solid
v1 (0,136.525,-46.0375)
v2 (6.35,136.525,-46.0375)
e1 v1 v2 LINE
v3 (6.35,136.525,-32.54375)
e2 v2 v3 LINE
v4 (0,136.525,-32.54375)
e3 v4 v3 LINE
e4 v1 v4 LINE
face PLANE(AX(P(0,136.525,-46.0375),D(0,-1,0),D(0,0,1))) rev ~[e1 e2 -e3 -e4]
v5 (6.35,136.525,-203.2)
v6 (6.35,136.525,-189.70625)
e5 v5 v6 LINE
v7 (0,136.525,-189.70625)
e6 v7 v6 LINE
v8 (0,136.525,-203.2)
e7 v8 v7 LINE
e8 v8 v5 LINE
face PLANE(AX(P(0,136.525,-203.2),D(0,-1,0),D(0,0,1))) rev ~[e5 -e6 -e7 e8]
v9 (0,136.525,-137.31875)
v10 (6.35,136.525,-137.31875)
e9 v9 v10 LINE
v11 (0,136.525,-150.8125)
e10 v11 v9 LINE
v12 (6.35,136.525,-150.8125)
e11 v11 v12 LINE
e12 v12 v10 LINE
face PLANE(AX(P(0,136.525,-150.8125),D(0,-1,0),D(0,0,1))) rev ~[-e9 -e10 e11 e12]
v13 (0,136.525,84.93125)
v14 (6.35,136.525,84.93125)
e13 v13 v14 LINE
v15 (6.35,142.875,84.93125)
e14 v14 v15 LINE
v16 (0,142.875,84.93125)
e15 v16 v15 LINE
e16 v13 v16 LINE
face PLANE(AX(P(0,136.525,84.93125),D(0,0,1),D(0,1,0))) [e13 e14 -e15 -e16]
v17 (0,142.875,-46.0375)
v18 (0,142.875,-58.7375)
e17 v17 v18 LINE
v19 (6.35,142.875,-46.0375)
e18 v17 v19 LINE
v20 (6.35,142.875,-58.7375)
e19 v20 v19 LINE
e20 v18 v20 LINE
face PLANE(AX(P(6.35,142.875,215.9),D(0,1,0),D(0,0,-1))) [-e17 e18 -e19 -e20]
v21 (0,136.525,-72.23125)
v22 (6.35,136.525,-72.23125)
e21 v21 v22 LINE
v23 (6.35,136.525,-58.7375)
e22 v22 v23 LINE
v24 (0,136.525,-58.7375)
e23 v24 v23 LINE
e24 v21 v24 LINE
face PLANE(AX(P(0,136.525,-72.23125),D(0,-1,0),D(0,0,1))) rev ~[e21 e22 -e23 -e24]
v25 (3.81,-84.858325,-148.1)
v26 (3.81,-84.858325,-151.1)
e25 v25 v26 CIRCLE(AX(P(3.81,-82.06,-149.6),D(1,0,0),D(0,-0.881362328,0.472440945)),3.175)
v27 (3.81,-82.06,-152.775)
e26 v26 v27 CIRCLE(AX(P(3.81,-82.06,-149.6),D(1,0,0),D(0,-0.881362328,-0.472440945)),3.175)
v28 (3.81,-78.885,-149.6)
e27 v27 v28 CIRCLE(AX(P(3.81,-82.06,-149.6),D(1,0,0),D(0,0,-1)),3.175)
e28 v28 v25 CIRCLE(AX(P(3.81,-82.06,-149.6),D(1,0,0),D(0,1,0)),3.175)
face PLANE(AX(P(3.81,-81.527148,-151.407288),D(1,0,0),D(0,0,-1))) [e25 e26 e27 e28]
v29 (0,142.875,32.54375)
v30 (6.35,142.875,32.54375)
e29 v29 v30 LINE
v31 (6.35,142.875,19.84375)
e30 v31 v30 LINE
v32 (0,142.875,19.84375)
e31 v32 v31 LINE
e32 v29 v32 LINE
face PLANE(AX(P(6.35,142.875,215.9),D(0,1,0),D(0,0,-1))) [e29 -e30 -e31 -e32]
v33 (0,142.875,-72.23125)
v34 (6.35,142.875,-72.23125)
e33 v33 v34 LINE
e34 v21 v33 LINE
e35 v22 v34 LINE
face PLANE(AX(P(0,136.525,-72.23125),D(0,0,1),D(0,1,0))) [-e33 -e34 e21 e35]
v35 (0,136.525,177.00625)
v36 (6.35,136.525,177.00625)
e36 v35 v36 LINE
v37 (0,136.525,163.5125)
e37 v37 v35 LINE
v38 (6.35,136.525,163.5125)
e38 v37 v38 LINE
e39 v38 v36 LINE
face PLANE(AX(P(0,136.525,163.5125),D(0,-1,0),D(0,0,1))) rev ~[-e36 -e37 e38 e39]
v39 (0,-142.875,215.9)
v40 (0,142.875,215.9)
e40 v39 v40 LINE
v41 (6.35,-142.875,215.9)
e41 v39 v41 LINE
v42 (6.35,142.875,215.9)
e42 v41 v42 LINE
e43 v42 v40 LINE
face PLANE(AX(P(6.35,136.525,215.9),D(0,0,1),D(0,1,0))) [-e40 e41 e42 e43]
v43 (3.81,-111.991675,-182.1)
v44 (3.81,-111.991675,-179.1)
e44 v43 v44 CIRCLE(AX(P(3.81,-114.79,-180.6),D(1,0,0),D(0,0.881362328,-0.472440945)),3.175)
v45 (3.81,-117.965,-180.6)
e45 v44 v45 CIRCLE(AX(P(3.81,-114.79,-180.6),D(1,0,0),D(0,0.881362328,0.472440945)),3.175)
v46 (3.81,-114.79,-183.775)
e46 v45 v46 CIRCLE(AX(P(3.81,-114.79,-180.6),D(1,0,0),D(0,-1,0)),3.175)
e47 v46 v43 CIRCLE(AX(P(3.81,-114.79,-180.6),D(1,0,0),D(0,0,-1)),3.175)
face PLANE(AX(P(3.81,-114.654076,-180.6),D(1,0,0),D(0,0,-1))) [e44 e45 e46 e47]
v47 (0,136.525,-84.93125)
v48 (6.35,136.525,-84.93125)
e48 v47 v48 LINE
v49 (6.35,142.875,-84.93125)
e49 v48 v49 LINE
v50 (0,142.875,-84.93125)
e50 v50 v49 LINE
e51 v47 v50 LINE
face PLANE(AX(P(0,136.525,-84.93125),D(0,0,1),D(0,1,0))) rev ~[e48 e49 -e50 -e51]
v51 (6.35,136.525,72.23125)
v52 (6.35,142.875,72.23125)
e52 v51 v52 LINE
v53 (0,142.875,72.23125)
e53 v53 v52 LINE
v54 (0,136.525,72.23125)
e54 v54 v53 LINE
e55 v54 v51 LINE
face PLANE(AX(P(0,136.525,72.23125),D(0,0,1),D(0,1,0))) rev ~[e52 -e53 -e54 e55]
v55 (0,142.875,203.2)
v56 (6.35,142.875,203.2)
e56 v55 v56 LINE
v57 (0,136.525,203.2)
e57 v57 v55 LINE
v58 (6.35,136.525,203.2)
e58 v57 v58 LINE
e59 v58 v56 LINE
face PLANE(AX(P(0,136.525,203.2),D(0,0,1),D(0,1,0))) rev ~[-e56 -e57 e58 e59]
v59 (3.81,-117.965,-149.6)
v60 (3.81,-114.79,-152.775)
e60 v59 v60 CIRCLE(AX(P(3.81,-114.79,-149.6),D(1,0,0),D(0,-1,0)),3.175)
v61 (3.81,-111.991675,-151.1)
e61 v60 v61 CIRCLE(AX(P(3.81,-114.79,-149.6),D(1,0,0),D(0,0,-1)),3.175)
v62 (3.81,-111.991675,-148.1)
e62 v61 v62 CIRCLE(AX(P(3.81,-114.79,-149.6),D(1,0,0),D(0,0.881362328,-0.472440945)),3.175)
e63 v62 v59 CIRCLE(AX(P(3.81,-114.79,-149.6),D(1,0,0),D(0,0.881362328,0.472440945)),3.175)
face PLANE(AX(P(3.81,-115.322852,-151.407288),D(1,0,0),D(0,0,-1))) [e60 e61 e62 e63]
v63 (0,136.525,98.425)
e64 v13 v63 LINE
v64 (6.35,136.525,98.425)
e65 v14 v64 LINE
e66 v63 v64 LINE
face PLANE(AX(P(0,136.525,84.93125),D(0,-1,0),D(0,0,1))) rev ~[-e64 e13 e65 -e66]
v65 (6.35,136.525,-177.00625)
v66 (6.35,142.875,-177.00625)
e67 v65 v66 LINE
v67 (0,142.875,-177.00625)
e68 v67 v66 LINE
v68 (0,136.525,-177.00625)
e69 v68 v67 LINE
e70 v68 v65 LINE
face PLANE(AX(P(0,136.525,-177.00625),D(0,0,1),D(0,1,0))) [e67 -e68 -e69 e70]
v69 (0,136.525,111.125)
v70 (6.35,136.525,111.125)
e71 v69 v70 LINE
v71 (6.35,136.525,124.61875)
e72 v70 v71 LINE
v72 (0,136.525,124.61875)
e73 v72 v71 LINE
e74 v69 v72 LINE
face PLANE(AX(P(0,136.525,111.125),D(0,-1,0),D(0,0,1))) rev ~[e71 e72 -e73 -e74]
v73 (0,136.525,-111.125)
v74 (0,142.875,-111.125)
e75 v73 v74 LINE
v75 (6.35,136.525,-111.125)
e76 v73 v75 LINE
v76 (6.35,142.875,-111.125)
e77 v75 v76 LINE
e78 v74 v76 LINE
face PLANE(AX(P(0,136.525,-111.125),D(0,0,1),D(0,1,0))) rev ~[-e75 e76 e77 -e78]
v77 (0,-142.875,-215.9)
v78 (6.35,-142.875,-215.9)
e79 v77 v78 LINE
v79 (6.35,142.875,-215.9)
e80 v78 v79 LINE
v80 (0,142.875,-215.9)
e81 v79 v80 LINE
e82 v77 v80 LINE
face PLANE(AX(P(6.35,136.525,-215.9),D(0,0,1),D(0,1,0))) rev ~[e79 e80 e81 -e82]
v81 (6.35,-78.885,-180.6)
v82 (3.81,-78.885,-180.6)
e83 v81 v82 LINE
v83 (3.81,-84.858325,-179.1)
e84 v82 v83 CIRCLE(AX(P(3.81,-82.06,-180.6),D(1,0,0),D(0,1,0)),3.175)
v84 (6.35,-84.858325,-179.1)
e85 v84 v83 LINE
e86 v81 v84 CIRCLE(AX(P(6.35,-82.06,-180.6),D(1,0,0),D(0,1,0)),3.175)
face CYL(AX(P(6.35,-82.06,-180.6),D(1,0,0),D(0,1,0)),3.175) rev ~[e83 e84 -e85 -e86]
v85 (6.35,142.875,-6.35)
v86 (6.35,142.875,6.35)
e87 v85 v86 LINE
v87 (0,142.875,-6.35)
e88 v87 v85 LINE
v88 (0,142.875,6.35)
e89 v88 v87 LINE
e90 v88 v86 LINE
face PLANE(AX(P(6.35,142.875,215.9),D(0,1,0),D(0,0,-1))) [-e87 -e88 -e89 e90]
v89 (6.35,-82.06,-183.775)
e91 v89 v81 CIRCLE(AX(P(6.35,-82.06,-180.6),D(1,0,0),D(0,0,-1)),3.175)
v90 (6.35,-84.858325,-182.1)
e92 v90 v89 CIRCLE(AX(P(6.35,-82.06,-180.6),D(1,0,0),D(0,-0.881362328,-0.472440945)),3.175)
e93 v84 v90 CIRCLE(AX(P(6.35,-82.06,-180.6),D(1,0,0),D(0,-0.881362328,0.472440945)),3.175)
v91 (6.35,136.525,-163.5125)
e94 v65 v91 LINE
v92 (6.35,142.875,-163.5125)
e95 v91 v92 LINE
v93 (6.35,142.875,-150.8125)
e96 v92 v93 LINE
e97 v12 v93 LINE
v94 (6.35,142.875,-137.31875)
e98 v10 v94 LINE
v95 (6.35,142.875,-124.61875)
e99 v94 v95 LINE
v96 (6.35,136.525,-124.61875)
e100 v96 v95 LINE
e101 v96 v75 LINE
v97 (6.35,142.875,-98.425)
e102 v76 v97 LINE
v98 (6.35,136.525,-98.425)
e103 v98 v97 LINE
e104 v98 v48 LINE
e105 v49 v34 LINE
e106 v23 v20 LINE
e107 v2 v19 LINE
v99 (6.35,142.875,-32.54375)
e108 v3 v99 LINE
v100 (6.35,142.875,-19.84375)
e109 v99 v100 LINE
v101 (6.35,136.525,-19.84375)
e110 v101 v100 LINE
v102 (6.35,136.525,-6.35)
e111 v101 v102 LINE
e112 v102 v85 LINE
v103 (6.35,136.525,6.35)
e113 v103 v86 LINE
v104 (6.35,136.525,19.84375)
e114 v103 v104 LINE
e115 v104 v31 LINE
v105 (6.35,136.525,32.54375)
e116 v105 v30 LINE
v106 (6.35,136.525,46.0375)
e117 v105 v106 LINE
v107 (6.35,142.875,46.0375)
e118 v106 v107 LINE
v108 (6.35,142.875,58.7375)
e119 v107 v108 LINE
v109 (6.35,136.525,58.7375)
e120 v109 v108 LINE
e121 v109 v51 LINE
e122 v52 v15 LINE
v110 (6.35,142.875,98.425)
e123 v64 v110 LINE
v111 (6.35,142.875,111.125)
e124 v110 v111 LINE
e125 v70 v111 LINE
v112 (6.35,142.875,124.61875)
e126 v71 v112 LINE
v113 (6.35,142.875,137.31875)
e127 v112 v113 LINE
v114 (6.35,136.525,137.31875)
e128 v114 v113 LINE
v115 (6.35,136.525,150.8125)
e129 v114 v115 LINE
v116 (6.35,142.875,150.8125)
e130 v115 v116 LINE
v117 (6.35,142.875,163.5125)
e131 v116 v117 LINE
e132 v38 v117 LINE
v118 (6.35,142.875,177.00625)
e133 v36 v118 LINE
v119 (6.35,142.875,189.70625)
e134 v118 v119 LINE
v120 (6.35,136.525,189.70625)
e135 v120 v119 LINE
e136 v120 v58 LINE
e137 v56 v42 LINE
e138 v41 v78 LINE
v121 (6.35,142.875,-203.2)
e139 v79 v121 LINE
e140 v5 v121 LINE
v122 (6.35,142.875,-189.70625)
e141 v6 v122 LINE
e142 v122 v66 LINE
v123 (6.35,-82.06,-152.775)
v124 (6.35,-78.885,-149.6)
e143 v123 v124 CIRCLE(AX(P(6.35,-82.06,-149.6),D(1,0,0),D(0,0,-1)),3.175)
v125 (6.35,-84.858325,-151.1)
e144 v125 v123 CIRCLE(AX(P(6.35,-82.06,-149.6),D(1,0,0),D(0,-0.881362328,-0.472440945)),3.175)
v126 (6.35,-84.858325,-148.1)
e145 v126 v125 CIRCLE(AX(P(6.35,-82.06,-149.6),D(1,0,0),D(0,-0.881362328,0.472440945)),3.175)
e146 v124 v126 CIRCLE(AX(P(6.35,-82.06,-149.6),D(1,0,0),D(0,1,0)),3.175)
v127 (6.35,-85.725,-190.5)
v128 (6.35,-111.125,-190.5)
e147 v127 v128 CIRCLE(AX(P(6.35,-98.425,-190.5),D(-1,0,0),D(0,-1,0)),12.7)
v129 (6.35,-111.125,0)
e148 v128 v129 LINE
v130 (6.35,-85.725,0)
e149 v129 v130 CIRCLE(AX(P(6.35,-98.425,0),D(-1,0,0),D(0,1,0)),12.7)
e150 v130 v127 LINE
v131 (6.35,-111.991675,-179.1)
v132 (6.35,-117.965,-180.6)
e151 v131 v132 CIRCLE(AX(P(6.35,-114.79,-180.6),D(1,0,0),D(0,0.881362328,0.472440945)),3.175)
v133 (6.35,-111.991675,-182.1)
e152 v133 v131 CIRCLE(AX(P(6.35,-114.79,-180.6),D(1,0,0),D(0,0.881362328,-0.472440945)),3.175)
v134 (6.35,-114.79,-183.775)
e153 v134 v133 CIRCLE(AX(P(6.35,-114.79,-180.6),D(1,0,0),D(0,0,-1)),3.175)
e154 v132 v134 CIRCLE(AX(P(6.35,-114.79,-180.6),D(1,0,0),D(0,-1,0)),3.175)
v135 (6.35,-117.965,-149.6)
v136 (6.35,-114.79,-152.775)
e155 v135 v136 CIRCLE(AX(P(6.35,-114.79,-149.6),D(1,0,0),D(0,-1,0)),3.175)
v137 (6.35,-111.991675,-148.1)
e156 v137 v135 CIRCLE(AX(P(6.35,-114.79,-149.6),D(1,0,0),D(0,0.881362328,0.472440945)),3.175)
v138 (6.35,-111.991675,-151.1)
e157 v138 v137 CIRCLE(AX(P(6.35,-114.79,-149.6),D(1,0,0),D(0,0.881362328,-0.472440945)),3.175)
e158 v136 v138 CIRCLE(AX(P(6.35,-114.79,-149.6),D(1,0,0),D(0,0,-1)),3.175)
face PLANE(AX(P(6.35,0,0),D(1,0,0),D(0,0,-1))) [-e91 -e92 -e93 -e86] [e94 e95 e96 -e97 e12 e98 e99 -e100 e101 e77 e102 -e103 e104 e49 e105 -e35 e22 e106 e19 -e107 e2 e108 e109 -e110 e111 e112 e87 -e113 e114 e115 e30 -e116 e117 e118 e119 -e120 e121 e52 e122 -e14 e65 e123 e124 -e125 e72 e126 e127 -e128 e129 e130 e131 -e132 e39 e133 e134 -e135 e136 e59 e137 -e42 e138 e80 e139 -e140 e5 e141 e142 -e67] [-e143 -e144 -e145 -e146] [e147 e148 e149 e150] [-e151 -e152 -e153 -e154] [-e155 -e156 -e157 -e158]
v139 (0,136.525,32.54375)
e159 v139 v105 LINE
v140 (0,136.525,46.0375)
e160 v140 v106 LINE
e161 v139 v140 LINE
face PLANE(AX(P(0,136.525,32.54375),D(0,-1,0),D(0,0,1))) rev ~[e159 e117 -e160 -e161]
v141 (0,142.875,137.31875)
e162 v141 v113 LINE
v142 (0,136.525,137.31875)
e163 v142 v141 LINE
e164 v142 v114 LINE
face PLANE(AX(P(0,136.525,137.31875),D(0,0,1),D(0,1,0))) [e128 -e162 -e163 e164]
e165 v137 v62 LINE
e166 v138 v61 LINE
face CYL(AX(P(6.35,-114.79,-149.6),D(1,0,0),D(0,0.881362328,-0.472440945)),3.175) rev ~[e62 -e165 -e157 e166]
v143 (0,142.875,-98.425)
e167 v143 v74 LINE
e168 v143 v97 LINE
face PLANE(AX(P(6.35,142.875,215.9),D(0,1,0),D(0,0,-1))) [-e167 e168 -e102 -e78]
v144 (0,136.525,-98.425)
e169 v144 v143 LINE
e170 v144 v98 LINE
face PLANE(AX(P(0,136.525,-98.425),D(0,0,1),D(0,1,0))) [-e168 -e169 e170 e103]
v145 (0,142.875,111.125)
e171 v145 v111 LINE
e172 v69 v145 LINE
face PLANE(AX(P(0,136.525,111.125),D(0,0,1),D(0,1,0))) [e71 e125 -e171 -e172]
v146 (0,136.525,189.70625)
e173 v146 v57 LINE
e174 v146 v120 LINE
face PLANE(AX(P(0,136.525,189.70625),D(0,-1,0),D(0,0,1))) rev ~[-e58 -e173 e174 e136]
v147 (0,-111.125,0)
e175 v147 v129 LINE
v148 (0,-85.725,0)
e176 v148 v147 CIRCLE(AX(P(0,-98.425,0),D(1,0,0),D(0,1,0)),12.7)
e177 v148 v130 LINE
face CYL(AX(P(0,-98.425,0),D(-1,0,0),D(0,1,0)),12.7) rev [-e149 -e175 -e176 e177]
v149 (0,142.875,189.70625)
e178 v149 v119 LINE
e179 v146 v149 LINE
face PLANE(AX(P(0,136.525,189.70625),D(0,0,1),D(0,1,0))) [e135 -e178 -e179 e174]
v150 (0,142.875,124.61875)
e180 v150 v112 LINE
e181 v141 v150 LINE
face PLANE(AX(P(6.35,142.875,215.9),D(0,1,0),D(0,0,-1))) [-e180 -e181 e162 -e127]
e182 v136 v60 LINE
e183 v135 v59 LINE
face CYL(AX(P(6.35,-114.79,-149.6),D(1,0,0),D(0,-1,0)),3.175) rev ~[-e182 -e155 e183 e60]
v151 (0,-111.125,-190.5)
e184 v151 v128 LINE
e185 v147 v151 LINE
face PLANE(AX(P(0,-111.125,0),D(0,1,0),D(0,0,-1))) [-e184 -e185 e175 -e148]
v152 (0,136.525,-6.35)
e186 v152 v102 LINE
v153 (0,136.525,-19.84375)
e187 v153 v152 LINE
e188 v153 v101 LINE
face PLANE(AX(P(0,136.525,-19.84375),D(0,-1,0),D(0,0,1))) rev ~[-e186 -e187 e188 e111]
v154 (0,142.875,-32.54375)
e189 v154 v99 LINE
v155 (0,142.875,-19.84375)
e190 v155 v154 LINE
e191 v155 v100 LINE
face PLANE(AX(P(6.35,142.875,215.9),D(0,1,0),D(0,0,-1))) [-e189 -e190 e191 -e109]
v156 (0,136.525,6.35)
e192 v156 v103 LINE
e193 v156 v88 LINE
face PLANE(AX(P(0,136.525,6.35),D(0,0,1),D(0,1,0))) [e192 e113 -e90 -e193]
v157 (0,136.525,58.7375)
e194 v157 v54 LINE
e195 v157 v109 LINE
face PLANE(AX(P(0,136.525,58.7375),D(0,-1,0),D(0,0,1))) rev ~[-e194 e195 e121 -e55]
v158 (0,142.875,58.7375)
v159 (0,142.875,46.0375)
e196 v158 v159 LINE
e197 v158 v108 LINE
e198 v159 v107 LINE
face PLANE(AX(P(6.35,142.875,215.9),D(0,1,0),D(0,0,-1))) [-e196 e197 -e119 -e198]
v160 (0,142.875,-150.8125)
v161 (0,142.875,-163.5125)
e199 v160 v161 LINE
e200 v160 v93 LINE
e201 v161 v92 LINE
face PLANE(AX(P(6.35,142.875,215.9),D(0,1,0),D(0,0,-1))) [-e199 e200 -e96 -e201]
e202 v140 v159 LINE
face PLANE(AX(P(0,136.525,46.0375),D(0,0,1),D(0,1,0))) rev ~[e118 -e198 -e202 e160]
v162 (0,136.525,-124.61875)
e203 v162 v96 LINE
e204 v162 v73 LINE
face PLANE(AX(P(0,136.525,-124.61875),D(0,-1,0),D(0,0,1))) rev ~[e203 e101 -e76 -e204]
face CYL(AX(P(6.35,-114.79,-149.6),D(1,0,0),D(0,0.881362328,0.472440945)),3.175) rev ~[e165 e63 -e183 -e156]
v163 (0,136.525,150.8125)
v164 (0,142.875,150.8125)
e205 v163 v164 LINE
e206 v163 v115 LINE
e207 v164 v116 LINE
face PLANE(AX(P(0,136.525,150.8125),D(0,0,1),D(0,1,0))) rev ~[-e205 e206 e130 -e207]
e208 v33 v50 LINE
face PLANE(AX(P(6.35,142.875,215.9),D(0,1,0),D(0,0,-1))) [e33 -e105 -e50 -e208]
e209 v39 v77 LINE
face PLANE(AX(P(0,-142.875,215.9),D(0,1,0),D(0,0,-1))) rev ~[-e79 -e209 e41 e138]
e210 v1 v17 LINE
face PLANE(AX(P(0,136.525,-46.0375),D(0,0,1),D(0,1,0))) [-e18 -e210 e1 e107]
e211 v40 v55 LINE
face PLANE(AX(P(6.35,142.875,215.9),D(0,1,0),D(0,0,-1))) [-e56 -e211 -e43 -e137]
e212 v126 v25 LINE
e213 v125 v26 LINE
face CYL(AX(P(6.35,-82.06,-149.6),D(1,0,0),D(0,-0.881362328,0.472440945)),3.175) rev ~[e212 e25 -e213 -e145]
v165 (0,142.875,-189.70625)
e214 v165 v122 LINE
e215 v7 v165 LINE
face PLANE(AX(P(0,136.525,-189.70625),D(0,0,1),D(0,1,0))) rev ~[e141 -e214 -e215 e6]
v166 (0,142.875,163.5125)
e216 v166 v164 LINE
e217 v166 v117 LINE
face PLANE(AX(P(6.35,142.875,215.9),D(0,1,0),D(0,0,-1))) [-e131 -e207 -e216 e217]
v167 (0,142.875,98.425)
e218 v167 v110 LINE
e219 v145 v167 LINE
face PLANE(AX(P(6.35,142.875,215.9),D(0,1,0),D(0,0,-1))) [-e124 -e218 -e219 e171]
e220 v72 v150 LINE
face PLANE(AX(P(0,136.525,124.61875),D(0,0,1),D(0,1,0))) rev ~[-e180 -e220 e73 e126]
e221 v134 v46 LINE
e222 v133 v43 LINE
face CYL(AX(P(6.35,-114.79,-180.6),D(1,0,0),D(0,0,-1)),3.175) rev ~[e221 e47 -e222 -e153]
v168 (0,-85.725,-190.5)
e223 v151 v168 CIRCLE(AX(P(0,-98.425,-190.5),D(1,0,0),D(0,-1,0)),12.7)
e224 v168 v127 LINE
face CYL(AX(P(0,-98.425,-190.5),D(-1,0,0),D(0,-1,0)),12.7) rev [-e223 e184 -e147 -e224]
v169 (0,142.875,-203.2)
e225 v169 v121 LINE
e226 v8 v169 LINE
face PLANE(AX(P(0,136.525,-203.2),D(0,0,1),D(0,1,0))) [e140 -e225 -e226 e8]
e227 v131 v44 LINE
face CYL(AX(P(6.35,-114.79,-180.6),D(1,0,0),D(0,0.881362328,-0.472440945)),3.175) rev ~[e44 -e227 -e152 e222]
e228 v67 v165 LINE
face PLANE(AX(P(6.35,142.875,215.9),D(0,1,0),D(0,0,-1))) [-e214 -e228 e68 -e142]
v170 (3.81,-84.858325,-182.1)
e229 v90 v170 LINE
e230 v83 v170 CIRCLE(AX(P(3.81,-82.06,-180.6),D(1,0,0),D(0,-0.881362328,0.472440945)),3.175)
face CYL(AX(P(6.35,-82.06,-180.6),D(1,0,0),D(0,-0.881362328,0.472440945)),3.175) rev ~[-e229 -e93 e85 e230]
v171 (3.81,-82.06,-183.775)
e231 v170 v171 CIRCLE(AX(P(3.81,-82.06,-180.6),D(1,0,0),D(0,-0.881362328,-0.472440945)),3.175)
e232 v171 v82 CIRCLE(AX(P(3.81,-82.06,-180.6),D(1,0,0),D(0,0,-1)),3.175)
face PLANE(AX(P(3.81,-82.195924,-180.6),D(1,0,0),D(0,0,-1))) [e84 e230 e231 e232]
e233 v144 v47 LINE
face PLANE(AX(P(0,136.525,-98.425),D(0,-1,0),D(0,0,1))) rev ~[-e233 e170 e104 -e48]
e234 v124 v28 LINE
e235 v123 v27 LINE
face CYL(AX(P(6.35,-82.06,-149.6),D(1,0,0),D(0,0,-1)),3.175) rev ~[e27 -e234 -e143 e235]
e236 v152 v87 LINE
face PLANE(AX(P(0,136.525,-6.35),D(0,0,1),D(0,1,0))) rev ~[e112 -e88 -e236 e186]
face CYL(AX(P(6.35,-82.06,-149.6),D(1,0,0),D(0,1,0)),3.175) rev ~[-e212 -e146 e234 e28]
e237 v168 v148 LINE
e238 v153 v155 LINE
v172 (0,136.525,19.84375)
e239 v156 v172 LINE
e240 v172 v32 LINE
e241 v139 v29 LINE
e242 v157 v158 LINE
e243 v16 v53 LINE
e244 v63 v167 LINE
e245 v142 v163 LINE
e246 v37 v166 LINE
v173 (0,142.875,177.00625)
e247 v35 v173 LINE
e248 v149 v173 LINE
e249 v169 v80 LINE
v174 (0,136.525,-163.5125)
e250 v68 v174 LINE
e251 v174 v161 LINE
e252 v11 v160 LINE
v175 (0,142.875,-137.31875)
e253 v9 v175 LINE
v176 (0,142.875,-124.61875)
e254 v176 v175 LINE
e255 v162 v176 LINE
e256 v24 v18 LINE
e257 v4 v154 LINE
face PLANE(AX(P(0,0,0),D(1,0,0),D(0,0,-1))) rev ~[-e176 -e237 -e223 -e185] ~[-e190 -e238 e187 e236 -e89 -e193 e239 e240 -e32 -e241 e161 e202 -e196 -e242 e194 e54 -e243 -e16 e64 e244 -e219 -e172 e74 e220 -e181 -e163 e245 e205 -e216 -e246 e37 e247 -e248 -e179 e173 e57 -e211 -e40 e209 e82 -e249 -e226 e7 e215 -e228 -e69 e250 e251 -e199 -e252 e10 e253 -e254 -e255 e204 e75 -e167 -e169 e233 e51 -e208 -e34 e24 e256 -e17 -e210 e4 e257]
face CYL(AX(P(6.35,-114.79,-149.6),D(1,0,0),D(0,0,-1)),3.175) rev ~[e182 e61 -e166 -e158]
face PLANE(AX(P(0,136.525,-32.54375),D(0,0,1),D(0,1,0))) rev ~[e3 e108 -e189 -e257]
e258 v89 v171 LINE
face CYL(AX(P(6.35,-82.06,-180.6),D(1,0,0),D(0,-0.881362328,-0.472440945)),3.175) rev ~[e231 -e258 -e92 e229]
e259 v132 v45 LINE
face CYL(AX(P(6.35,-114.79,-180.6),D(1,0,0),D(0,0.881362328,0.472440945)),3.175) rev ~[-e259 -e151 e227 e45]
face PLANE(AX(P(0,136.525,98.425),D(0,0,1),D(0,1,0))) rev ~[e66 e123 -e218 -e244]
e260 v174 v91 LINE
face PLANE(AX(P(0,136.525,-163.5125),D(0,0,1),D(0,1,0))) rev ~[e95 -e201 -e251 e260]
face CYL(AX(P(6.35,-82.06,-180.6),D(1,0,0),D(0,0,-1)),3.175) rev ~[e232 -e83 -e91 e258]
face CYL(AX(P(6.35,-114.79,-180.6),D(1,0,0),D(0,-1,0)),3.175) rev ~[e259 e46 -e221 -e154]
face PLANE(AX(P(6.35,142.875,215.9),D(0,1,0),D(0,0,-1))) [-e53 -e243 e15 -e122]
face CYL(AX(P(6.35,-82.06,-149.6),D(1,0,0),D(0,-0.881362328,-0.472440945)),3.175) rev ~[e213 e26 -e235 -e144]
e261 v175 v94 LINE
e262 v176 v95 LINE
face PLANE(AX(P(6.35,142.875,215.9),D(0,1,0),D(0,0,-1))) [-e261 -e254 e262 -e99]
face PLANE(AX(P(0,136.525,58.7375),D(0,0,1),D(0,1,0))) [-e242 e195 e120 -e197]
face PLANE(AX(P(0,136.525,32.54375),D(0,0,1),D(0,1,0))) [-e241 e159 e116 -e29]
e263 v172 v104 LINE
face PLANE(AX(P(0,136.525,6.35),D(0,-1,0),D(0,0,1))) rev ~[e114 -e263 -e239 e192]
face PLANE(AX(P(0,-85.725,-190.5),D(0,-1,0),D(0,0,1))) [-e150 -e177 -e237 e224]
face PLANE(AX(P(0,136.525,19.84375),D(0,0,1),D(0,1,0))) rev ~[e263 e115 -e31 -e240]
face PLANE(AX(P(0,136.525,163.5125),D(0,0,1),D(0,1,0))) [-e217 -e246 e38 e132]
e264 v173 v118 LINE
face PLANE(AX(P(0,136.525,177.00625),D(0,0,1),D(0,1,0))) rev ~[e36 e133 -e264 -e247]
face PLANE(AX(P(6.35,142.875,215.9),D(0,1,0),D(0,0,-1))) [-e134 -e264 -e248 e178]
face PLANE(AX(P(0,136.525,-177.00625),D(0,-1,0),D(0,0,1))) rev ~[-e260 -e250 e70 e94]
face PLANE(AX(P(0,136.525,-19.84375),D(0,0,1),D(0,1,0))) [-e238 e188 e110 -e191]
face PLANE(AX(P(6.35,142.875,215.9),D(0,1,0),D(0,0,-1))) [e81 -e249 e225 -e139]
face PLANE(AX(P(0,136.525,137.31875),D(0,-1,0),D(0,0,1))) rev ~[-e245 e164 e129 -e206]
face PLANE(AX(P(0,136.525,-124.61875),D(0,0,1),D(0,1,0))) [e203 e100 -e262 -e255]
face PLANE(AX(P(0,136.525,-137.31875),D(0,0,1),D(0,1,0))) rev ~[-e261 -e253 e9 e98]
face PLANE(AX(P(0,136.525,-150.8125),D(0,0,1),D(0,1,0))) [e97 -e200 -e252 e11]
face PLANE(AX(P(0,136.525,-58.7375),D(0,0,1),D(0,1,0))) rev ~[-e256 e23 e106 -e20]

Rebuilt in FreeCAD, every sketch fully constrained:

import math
import FreeCAD as App
import Part
import Sketcher

V = App.Vector
Q = App.Units.Quantity

doc = App.newDocument("Part")
body = doc.addObject("PartDesign::Body", "Body")

sketch1 = doc.addObject("Sketcher::SketchObject", "Sketch")
body.addObject(sketch1)
sketch1.AttachmentSupport = (doc.YZ_Plane, [""])
sketch1.MapMode = "FlatFace"
sketch1.addGeometry([
    Part.LineSegment(V(143, 216, 0), V(-143, 216, 0)),
    Part.LineSegment(V(-143, 216, 0), V(-143, -216, 0)),
    Part.LineSegment(V(-143, -216, 0), V(143, -216, 0)),
    Part.LineSegment(V(143, -216, 0), V(143, 216, 0)),
], False)
sketch1.addConstraint([
    Sketcher.Constraint("Coincident", 0, 2, 1, 1),
    Sketcher.Constraint("Coincident", 1, 2, 2, 1),
    Sketcher.Constraint("Coincident", 2, 2, 3, 1),
    Sketcher.Constraint("Coincident", 3, 2, 0, 1),
    Sketcher.Constraint("Horizontal", 0),
    Sketcher.Constraint("Vertical", 1),
    Sketcher.Constraint("Horizontal", 2),
    Sketcher.Constraint("Vertical", 3),
    Sketcher.Constraint("Symmetric", 0, 2, 2, 2, -1, 1),
    Sketcher.Constraint("DistanceY", 1, 2, 1, 1, Q("17 in")),
    Sketcher.Constraint("DistanceX", 0, 2, 0, 1, Q("11.25 in")),
])
pad1 = doc.addObject("PartDesign::Pad", "Pad")
body.addObject(pad1)
pad1.Profile = sketch1
pad1.Length = Q("0.25 in")

sketch2 = doc.addObject("Sketcher::SketchObject", "Sketch001")
body.addObject(sketch2)
sketch2.AttachmentSupport = (doc.YZ_Plane, [""])
sketch2.MapMode = "FlatFace"
sketch2.AttachmentOffset = App.Placement(V(0, 0, 0.25 * 25.4), App.Rotation())
sketch2.addGeometry([
    Part.LineSegment(V(143, 216, 0), V(137, 216, 0)),
    Part.LineSegment(V(137, 216, 0), V(137, -216, 0)),
    Part.LineSegment(V(137, -216, 0), V(143, -216, 0)),
    Part.LineSegment(V(143, -216, 0), V(143, 216, 0)),
], False)
sketch2.addConstraint([
    Sketcher.Constraint("Coincident", 0, 2, 1, 1),
    Sketcher.Constraint("Coincident", 1, 2, 2, 1),
    Sketcher.Constraint("Coincident", 2, 2, 3, 1),
    Sketcher.Constraint("Coincident", 3, 2, 0, 1),
    Sketcher.Constraint("Horizontal", 0),
    Sketcher.Constraint("Vertical", 1),
    Sketcher.Constraint("Horizontal", 2),
    Sketcher.Constraint("Vertical", 3),
    Sketcher.Constraint("DistanceY", 1, 2, 1, 1, Q("17 in")),
    Sketcher.Constraint("DistanceX", 0, 2, 0, 1, Q("0.25 in")),
    Sketcher.Constraint("DistanceY", -1, 1, 0, 2, Q("8.5 in")),
    Sketcher.Constraint("DistanceX", -1, 1, 0, 2, Q("5.375 in")),
])
pad2 = doc.addObject("PartDesign::Pad", "Pad001")
body.addObject(pad2)
pad2.Profile = sketch2
pad2.Length = Q("0.5 in")

sketch3 = doc.addObject("Sketcher::SketchObject", "Sketch002")
body.addObject(sketch3)
sketch3.AttachmentSupport = (doc.YZ_Plane, [""])
sketch3.MapMode = "FlatFace"
sketch3.addGeometry([
    Part.LineSegment(V(-86, 0, 0), V(-86, -190, 0)),
    Part.ArcOfCircle(Part.Circle(V(-98, -190, 0), V(0, 0, 1), 13), math.radians(180), math.radians(360)),
    Part.LineSegment(V(-111, -190, 0), V(-111, 0, 0)),
    Part.ArcOfCircle(Part.Circle(V(-98, 0, 0), V(0, 0, 1), 13), math.radians(0), math.radians(180)),
], False)
sketch3.addConstraint([
    Sketcher.Constraint("Tangent", 0, 2, 1, 2),
    Sketcher.Constraint("Tangent", 1, 1, 2, 1),
    Sketcher.Constraint("Tangent", 2, 2, 3, 2),
    Sketcher.Constraint("Tangent", 3, 1, 0, 1),
    Sketcher.Constraint("Vertical", 0),
    Sketcher.Constraint("Vertical", 2),
    Sketcher.Constraint("PointOnObject", 3, 3, -1),
    Sketcher.Constraint("Radius", 1, Q("0.5 in")),
    Sketcher.Constraint("DistanceY", 0, 2, 0, 1, Q("7.5 in")),
    Sketcher.Constraint("DistanceX", 1, 3, -1, 1, Q("3.875 in")),
])
pocket1 = doc.addObject("PartDesign::Pocket", "Pocket")
body.addObject(pocket1)
pocket1.Profile = sketch3
pocket1.Type = "ThroughAll"
pocket1.Reversed = True

sketch4 = doc.addObject("Sketcher::SketchObject", "Sketch003")
body.addObject(sketch4)
sketch4.AttachmentSupport = (doc.XY_Plane, [""])
sketch4.MapMode = "FlatFace"
sketch4.AttachmentOffset = App.Placement(V(0, 0, -8.5 * 25.4), App.Rotation())
sketch4.addGeometry([
    Part.LineSegment(V(58, 158, 0), V(58, 137, 0)),
    Part.LineSegment(V(58, 137, 0), V(6, 137, 0)),
    Part.LineSegment(V(6, 137, 0), V(6, 158, 0)),
    Part.LineSegment(V(6, 158, 0), V(58, 158, 0)),
], False)
sketch4.addConstraint([
    Sketcher.Constraint("Coincident", 0, 2, 1, 1),
    Sketcher.Constraint("Coincident", 1, 2, 2, 1),
    Sketcher.Constraint("Coincident", 2, 2, 3, 1),
    Sketcher.Constraint("Coincident", 3, 2, 0, 1),
    Sketcher.Constraint("Vertical", 0),
    Sketcher.Constraint("Horizontal", 1),
    Sketcher.Constraint("Vertical", 2),
    Sketcher.Constraint("Horizontal", 3),
    Sketcher.Constraint("DistanceX", -1, 1, 1, 2, Q("0.25 in")),
    Sketcher.Constraint("DistanceY", -1, 1, 0, 2, Q("5.375 in")),
    Sketcher.Constraint("DistanceX", 1, 2, 1, 1, 51.415141),
    Sketcher.Constraint("DistanceY", 0, 2, 0, 1, 21.159166),
])
pocket2 = doc.addObject("PartDesign::Pocket", "Pocket001")
body.addObject(pocket2)
pocket2.Profile = sketch4
pocket2.Type = "ThroughAll"
pocket2.Reversed = True

sketch5 = doc.addObject("Sketcher::SketchObject", "Sketch004")
body.addObject(sketch5)
sketch5.AttachmentSupport = (doc.YZ_Plane, [""])
sketch5.MapMode = "FlatFace"
sketch5.addGeometry([
    Part.LineSegment(V(143, -203, 0), V(137, -203, 0)),
    Part.LineSegment(V(137, -203, 0), V(137, -190, 0)),
    Part.LineSegment(V(137, -190, 0), V(143, -190, 0)),
    Part.LineSegment(V(143, -190, 0), V(143, -203, 0)),
    Part.LineSegment(V(143, -177, 0), V(137, -177, 0)),
    Part.LineSegment(V(137, -177, 0), V(137, -164, 0)),
    Part.LineSegment(V(137, -164, 0), V(143, -164, 0)),
    Part.LineSegment(V(143, -164, 0), V(143, -177, 0)),
    Part.LineSegment(V(143, -151, 0), V(137, -151, 0)),
    Part.LineSegment(V(137, -151, 0), V(137, -137, 0)),
    Part.LineSegment(V(137, -137, 0), V(143, -137, 0)),
    Part.LineSegment(V(143, -137, 0), V(143, -151, 0)),
    Part.LineSegment(V(143, -125, 0), V(137, -125, 0)),
    Part.LineSegment(V(137, -125, 0), V(137, -111, 0)),
    Part.LineSegment(V(137, -111, 0), V(143, -111, 0)),
    Part.LineSegment(V(143, -111, 0), V(143, -125, 0)),
    Part.LineSegment(V(143, -98, 0), V(137, -98, 0)),
    Part.LineSegment(V(137, -98, 0), V(137, -85, 0)),
    Part.LineSegment(V(137, -85, 0), V(143, -85, 0)),
    Part.LineSegment(V(143, -85, 0), V(143, -98, 0)),
    Part.LineSegment(V(143, -72, 0), V(137, -72, 0)),
    Part.LineSegment(V(137, -72, 0), V(137, -59, 0)),
    Part.LineSegment(V(137, -59, 0), V(143, -59, 0)),
    Part.LineSegment(V(143, -59, 0), V(143, -72, 0)),
    Part.LineSegment(V(143, -46, 0), V(137, -46, 0)),
    Part.LineSegment(V(137, -46, 0), V(137, -33, 0)),
    Part.LineSegment(V(137, -33, 0), V(143, -33, 0)),
    Part.LineSegment(V(143, -33, 0), V(143, -46, 0)),
    Part.LineSegment(V(143, -20, 0), V(137, -20, 0)),
    Part.LineSegment(V(137, -20, 0), V(137, -6, 0)),
    Part.LineSegment(V(137, -6, 0), V(143, -6, 0)),
    Part.LineSegment(V(143, -6, 0), V(143, -20, 0)),
    Part.LineSegment(V(143, 6, 0), V(137, 6, 0)),
    Part.LineSegment(V(137, 6, 0), V(137, 20, 0)),
    Part.LineSegment(V(137, 20, 0), V(143, 20, 0)),
    Part.LineSegment(V(143, 20, 0), V(143, 6, 0)),
    Part.LineSegment(V(143, 33, 0), V(137, 33, 0)),
    Part.LineSegment(V(137, 33, 0), V(137, 46, 0)),
    Part.LineSegment(V(137, 46, 0), V(143, 46, 0)),
    Part.LineSegment(V(143, 46, 0), V(143, 33, 0)),
    Part.LineSegment(V(143, 59, 0), V(137, 59, 0)),
    Part.LineSegment(V(137, 59, 0), V(137, 72, 0)),
    Part.LineSegment(V(137, 72, 0), V(143, 72, 0)),
    Part.LineSegment(V(143, 72, 0), V(143, 59, 0)),
    Part.LineSegment(V(143, 85, 0), V(137, 85, 0)),
    Part.LineSegment(V(137, 85, 0), V(137, 98, 0)),
    Part.LineSegment(V(137, 98, 0), V(143, 98, 0)),
    Part.LineSegment(V(143, 98, 0), V(143, 85, 0)),
    Part.LineSegment(V(143, 111, 0), V(137, 111, 0)),
    Part.LineSegment(V(137, 111, 0), V(137, 125, 0)),
    Part.LineSegment(V(137, 125, 0), V(143, 125, 0)),
    Part.LineSegment(V(143, 125, 0), V(143, 111, 0)),
    Part.LineSegment(V(143, 137, 0), V(137, 137, 0)),
    Part.LineSegment(V(137, 137, 0), V(137, 151, 0)),
    Part.LineSegment(V(137, 151, 0), V(143, 151, 0)),
    Part.LineSegment(V(143, 151, 0), V(143, 137, 0)),
    Part.LineSegment(V(143, 164, 0), V(137, 164, 0)),
    Part.LineSegment(V(137, 164, 0), V(137, 177, 0)),
    Part.LineSegment(V(137, 177, 0), V(143, 177, 0)),
    Part.LineSegment(V(143, 177, 0), V(143, 164, 0)),
    Part.LineSegment(V(143, 190, 0), V(137, 190, 0)),
    Part.LineSegment(V(137, 190, 0), V(137, 203, 0)),
    Part.LineSegment(V(137, 203, 0), V(143, 203, 0)),
    Part.LineSegment(V(143, 203, 0), V(143, 190, 0)),
], False)
sketch5.addConstraint([
    Sketcher.Constraint("Coincident", 0, 2, 1, 1),
    Sketcher.Constraint("Coincident", 1, 2, 2, 1),
    Sketcher.Constraint("Coincident", 2, 2, 3, 1),
    Sketcher.Constraint("Coincident", 3, 2, 0, 1),
    Sketcher.Constraint("Coincident", 4, 2, 5, 1),
    Sketcher.Constraint("Coincident", 5, 2, 6, 1),
    Sketcher.Constraint("Coincident", 6, 2, 7, 1),
    Sketcher.Constraint("Coincident", 7, 2, 4, 1),
    Sketcher.Constraint("Coincident", 8, 2, 9, 1),
    Sketcher.Constraint("Coincident", 9, 2, 10, 1),
    Sketcher.Constraint("Coincident", 10, 2, 11, 1),
    Sketcher.Constraint("Coincident", 11, 2, 8, 1),
    Sketcher.Constraint("Coincident", 12, 2, 13, 1),
    Sketcher.Constraint("Coincident", 13, 2, 14, 1),
    Sketcher.Constraint("Coincident", 14, 2, 15, 1),
    Sketcher.Constraint("Coincident", 15, 2, 12, 1),
    Sketcher.Constraint("Coincident", 16, 2, 17, 1),
    Sketcher.Constraint("Coincident", 17, 2, 18, 1),
    Sketcher.Constraint("Coincident", 18, 2, 19, 1),
    Sketcher.Constraint("Coincident", 19, 2, 16, 1),
    Sketcher.Constraint("Coincident", 20, 2, 21, 1),
    Sketcher.Constraint("Coincident", 21, 2, 22, 1),
    Sketcher.Constraint("Coincident", 22, 2, 23, 1),
    Sketcher.Constraint("Coincident", 23, 2, 20, 1),
    Sketcher.Constraint("Coincident", 24, 2, 25, 1),
    Sketcher.Constraint("Coincident", 25, 2, 26, 1),
    Sketcher.Constraint("Coincident", 26, 2, 27, 1),
    Sketcher.Constraint("Coincident", 27, 2, 24, 1),
    Sketcher.Constraint("Coincident", 28, 2, 29, 1),
    Sketcher.Constraint("Coincident", 29, 2, 30, 1),
    Sketcher.Constraint("Coincident", 30, 2, 31, 1),
    Sketcher.Constraint("Coincident", 31, 2, 28, 1),
    Sketcher.Constraint("Coincident", 32, 2, 33, 1),
    Sketcher.Constraint("Coincident", 33, 2, 34, 1),
    Sketcher.Constraint("Coincident", 34, 2, 35, 1),
    Sketcher.Constraint("Coincident", 35, 2, 32, 1),
    Sketcher.Constraint("Coincident", 36, 2, 37, 1),
    Sketcher.Constraint("Coincident", 37, 2, 38, 1),
    Sketcher.Constraint("Coincident", 38, 2, 39, 1),
    Sketcher.Constraint("Coincident", 39, 2, 36, 1),
    Sketcher.Constraint("Coincident", 40, 2, 41, 1),
    Sketcher.Constraint("Coincident", 41, 2, 42, 1),
    Sketcher.Constraint("Coincident", 42, 2, 43, 1),
    Sketcher.Constraint("Coincident", 43, 2, 40, 1),
    Sketcher.Constraint("Coincident", 44, 2, 45, 1),
    Sketcher.Constraint("Coincident", 45, 2, 46, 1),
    Sketcher.Constraint("Coincident", 46, 2, 47, 1),
    Sketcher.Constraint("Coincident", 47, 2, 44, 1),
    Sketcher.Constraint("Coincident", 48, 2, 49, 1),
    Sketcher.Constraint("Coincident", 49, 2, 50, 1),
    Sketcher.Constraint("Coincident", 50, 2, 51, 1),
    Sketcher.Constraint("Coincident", 51, 2, 48, 1),
    Sketcher.Constraint("Coincident", 52, 2, 53, 1),
    Sketcher.Constraint("Coincident", 53, 2, 54, 1),
    Sketcher.Constraint("Coincident", 54, 2, 55, 1),
    Sketcher.Constraint("Coincident", 55, 2, 52, 1),
    Sketcher.Constraint("Coincident", 56, 2, 57, 1),
    Sketcher.Constraint("Coincident", 57, 2, 58, 1),
    Sketcher.Constraint("Coincident", 58, 2, 59, 1),
    Sketcher.Constraint("Coincident", 59, 2, 56, 1),
    Sketcher.Constraint("Coincident", 60, 2, 61, 1),
    Sketcher.Constraint("Coincident", 61, 2, 62, 1),
    Sketcher.Constraint("Coincident", 62, 2, 63, 1),
    Sketcher.Constraint("Coincident", 63, 2, 60, 1),
    Sketcher.Constraint("Horizontal", 0),
    Sketcher.Constraint("Vertical", 1),
    Sketcher.Constraint("Horizontal", 2),
    Sketcher.Constraint("Vertical", 3),
    Sketcher.Constraint("Horizontal", 4),
    Sketcher.Constraint("Vertical", 5),
    Sketcher.Constraint("Horizontal", 6),
    Sketcher.Constraint("Vertical", 7),
    Sketcher.Constraint("Horizontal", 8),
    Sketcher.Constraint("Vertical", 9),
    Sketcher.Constraint("Horizontal", 10),
    Sketcher.Constraint("Vertical", 11),
    Sketcher.Constraint("Horizontal", 12),
    Sketcher.Constraint("Vertical", 13),
    Sketcher.Constraint("Horizontal", 14),
    Sketcher.Constraint("Vertical", 15),
    Sketcher.Constraint("Horizontal", 16),
    Sketcher.Constraint("Vertical", 17),
    Sketcher.Constraint("Horizontal", 18),
    Sketcher.Constraint("Vertical", 19),
    Sketcher.Constraint("Horizontal", 20),
    Sketcher.Constraint("Vertical", 21),
    Sketcher.Constraint("Horizontal", 22),
    Sketcher.Constraint("Vertical", 23),
    Sketcher.Constraint("Horizontal", 24),
    Sketcher.Constraint("Vertical", 25),
    Sketcher.Constraint("Horizontal", 26),
    Sketcher.Constraint("Vertical", 27),
    Sketcher.Constraint("Horizontal", 28),
    Sketcher.Constraint("Vertical", 29),
    Sketcher.Constraint("Horizontal", 30),
    Sketcher.Constraint("Vertical", 31),
    Sketcher.Constraint("Horizontal", 32),
    Sketcher.Constraint("Vertical", 33),
    Sketcher.Constraint("Horizontal", 34),
    Sketcher.Constraint("Vertical", 35),
    Sketcher.Constraint("Horizontal", 36),
    Sketcher.Constraint("Vertical", 37),
    Sketcher.Constraint("Horizontal", 38),
    Sketcher.Constraint("Vertical", 39),
    Sketcher.Constraint("Horizontal", 40),
    Sketcher.Constraint("Vertical", 41),
    Sketcher.Constraint("Horizontal", 42),
    Sketcher.Constraint("Vertical", 43),
    Sketcher.Constraint("Horizontal", 44),
    Sketcher.Constraint("Vertical", 45),
    Sketcher.Constraint("Horizontal", 46),
    Sketcher.Constraint("Vertical", 47),
    Sketcher.Constraint("Horizontal", 48),
    Sketcher.Constraint("Vertical", 49),
    Sketcher.Constraint("Horizontal", 50),
    Sketcher.Constraint("Vertical", 51),
    Sketcher.Constraint("Horizontal", 52),
    Sketcher.Constraint("Vertical", 53),
    Sketcher.Constraint("Horizontal", 54),
    Sketcher.Constraint("Vertical", 55),
    Sketcher.Constraint("Horizontal", 56),
    Sketcher.Constraint("Vertical", 57),
    Sketcher.Constraint("Horizontal", 58),
    Sketcher.Constraint("Vertical", 59),
    Sketcher.Constraint("Horizontal", 60),
    Sketcher.Constraint("Vertical", 61),
    Sketcher.Constraint("Horizontal", 62),
    Sketcher.Constraint("Vertical", 63),
    Sketcher.Constraint("Symmetric", 29, 2, 32, 2, -1),
    Sketcher.Constraint("Symmetric", 31, 2, 34, 2, -1),
    Sketcher.Constraint("Symmetric", 25, 2, 36, 2, -1),
    Sketcher.Constraint("Symmetric", 27, 2, 38, 2, -1),
    Sketcher.Constraint("Symmetric", 21, 2, 40, 2, -1),
    Sketcher.Constraint("Symmetric", 23, 2, 42, 2, -1),
    Sketcher.Constraint("Symmetric", 17, 2, 44, 2, -1),
    Sketcher.Constraint("Symmetric", 19, 2, 46, 2, -1),
    Sketcher.Constraint("Symmetric", 13, 2, 48, 2, -1),
    Sketcher.Constraint("Symmetric", 15, 2, 50, 2, -1),
    Sketcher.Constraint("Symmetric", 9, 2, 52, 2, -1),
    Sketcher.Constraint("Symmetric", 11, 2, 54, 2, -1),
    Sketcher.Constraint("Symmetric", 5, 2, 56, 2, -1),
    Sketcher.Constraint("Symmetric", 7, 2, 58, 2, -1),
    Sketcher.Constraint("Symmetric", 1, 2, 60, 2, -1),
    Sketcher.Constraint("Symmetric", 3, 2, 62, 2, -1),
    Sketcher.Constraint("Vertical", 1, 2, 4, 2),
    Sketcher.Constraint("Vertical", 3, 2, 6, 2),
    Sketcher.Constraint("Vertical", 5, 2, 8, 2),
    Sketcher.Constraint("Vertical", 7, 2, 10, 2),
    Sketcher.Constraint("Vertical", 9, 2, 12, 2),
    Sketcher.Constraint("Vertical", 11, 2, 14, 2),
    Sketcher.Constraint("Vertical", 13, 2, 16, 2),
    Sketcher.Constraint("Vertical", 15, 2, 18, 2),
    Sketcher.Constraint("Vertical", 17, 2, 20, 2),
    Sketcher.Constraint("Vertical", 19, 2, 22, 2),
    Sketcher.Constraint("Vertical", 21, 2, 24, 2),
    Sketcher.Constraint("Vertical", 23, 2, 26, 2),
    Sketcher.Constraint("Vertical", 25, 2, 28, 2),
    Sketcher.Constraint("Vertical", 27, 2, 30, 2),
    Sketcher.Constraint("Equal", 3, 5),
    Sketcher.Constraint("Equal", 7, 9),
    Sketcher.Constraint("Equal", 11, 13),
    Sketcher.Constraint("Equal", 15, 17),
    Sketcher.Constraint("Equal", 19, 21),
    Sketcher.Constraint("Equal", 23, 25),
    Sketcher.Constraint("Equal", 27, 29),
    Sketcher.Constraint("DistanceY", 0, 2, -1, 1, Q("8 in")),
    Sketcher.Constraint("DistanceX", 0, 2, 0, 1, Q("0.25 in")),
    Sketcher.Constraint("DistanceY", 1, 1, 1, 2, Q("0.53125 in")),
    Sketcher.Constraint("DistanceY", 29, 2, -1, 1, Q("0.25 in")),
    Sketcher.Constraint("DistanceX", -1, 1, 0, 2, Q("5.375 in")),
    Sketcher.Constraint("DistanceY", 4, 2, -1, 1, Q("6.96875 in")),
    Sketcher.Constraint("DistanceY", 8, 2, -1, 1, Q("5.9375 in")),
    Sketcher.Constraint("DistanceY", 12, 2, -1, 1, Q("4.90625 in")),
    Sketcher.Constraint("DistanceY", 16, 2, -1, 1, Q("3.875 in")),
    Sketcher.Constraint("DistanceY", 20, 2, -1, 1, Q("2.84375 in")),
    Sketcher.Constraint("DistanceY", 24, 2, -1, 1, Q("1.8125 in")),
])
pocket3 = doc.addObject("PartDesign::Pocket", "Pocket002")
body.addObject(pocket3)
pocket3.Profile = sketch5
pocket3.Length = Q("0.25 in")
pocket3.Reversed = True

sketch6 = doc.addObject("Sketcher::SketchObject", "Sketch005")
body.addObject(sketch6)
sketch6.AttachmentSupport = (doc.YZ_Plane, [""])
sketch6.MapMode = "FlatFace"
sketch6.AttachmentOffset = App.Placement(V(0, 0, 0.25 * 25.4), App.Rotation())
sketch6.addGeometry([
    Part.ArcOfCircle(Part.Circle(V(-82.1, -149.6, 0), V(0, 0, 1), 3.2), math.radians(-90), math.radians(0)),
    Part.ArcOfCircle(Part.Circle(V(-82.1, -149.6, 0), V(0, 0, 1), 3.2), math.radians(0), math.radians(152)),
    Part.ArcOfCircle(Part.Circle(V(-82.1, -149.6, 0), V(0, 0, 1), 3.2), math.radians(152), math.radians(208)),
    Part.ArcOfCircle(Part.Circle(V(-82.1, -149.6, 0), V(0, 0, 1), 3.2), math.radians(-152), math.radians(-90)),
    Part.ArcOfCircle(Part.Circle(V(-82.1, -180.6, 0), V(0, 0, 1), 3.2), math.radians(152), math.radians(208)),
    Part.ArcOfCircle(Part.Circle(V(-82.1, -180.6, 0), V(0, 0, 1), 3.2), math.radians(-152), math.radians(-90)),
    Part.ArcOfCircle(Part.Circle(V(-82.1, -180.6, 0), V(0, 0, 1), 3.2), math.radians(-90), math.radians(0)),
    Part.ArcOfCircle(Part.Circle(V(-82.1, -180.6, 0), V(0, 0, 1), 3.2), math.radians(0), math.radians(152)),
    Part.ArcOfCircle(Part.Circle(V(-114.8, -149.6, 0), V(0, 0, 1), 3.2), math.radians(-180), math.radians(-90)),
    Part.ArcOfCircle(Part.Circle(V(-114.8, -149.6, 0), V(0, 0, 1), 3.2), math.radians(-90), math.radians(-28)),
    Part.ArcOfCircle(Part.Circle(V(-114.8, -149.6, 0), V(0, 0, 1), 3.2), math.radians(-28), math.radians(28)),
    Part.ArcOfCircle(Part.Circle(V(-114.8, -149.6, 0), V(0, 0, 1), 3.2), math.radians(28), math.radians(180)),
    Part.ArcOfCircle(Part.Circle(V(-114.8, -180.6, 0), V(0, 0, 1), 3.2), math.radians(-28), math.radians(28)),
    Part.ArcOfCircle(Part.Circle(V(-114.8, -180.6, 0), V(0, 0, 1), 3.2), math.radians(28), math.radians(180)),
    Part.ArcOfCircle(Part.Circle(V(-114.8, -180.6, 0), V(0, 0, 1), 3.2), math.radians(-180), math.radians(-90)),
    Part.ArcOfCircle(Part.Circle(V(-114.8, -180.6, 0), V(0, 0, 1), 3.2), math.radians(-90), math.radians(-28)),
], False)
sketch6.addConstraint([
    Sketcher.Constraint("Tangent", 0, 2, 1, 1),
    Sketcher.Constraint("Tangent", 1, 2, 2, 1),
    Sketcher.Constraint("Tangent", 2, 2, 3, 1),
    Sketcher.Constraint("Tangent", 3, 2, 0, 1),
    Sketcher.Constraint("Tangent", 4, 2, 5, 1),
    Sketcher.Constraint("Tangent", 5, 2, 6, 1),
    Sketcher.Constraint("Tangent", 6, 2, 7, 1),
    Sketcher.Constraint("Tangent", 7, 2, 4, 1),
    Sketcher.Constraint("Tangent", 8, 2, 9, 1),
    Sketcher.Constraint("Tangent", 9, 2, 10, 1),
    Sketcher.Constraint("Tangent", 10, 2, 11, 1),
    Sketcher.Constraint("Tangent", 11, 2, 8, 1),
    Sketcher.Constraint("Tangent", 12, 2, 13, 1),
    Sketcher.Constraint("Tangent", 13, 2, 14, 1),
    Sketcher.Constraint("Tangent", 14, 2, 15, 1),
    Sketcher.Constraint("Tangent", 15, 2, 12, 1),
    Sketcher.Constraint("Equal", 0, 1),
    Sketcher.Constraint("Equal", 3, 4),
    Sketcher.Constraint("Equal", 4, 5),
    Sketcher.Constraint("Equal", 7, 8),
    Sketcher.Constraint("Equal", 8, 9),
    Sketcher.Constraint("Equal", 11, 12),
    Sketcher.Constraint("Equal", 12, 13),
    Sketcher.Constraint("Horizontal", 3, 3, 8, 3),
    Sketcher.Constraint("Horizontal", 7, 3, 12, 3),
    Sketcher.Constraint("Horizontal", 11, 3, 0, 2),
    Sketcher.Constraint("Horizontal", 15, 3, 6, 2),
    Sketcher.Constraint("Horizontal", 2, 2, 9, 2),
    Sketcher.Constraint("Horizontal", 1, 2, 10, 2),
    Sketcher.Constraint("Horizontal", 0, 2, 11, 2),
    Sketcher.Constraint("Horizontal", 7, 2, 12, 2),
    Sketcher.Constraint("Horizontal", 6, 2, 13, 2),
    Sketcher.Constraint("Horizontal", 4, 2, 15, 2),
    Sketcher.Constraint("Vertical", 3, 3, 4, 3),
    Sketcher.Constraint("Vertical", 11, 3, 12, 3),
    Sketcher.Constraint("Vertical", 1, 2, 2, 2),
    Sketcher.Constraint("Vertical", 7, 3, 3, 2),
    Sketcher.Constraint("Vertical", 2, 2, 4, 2),
    Sketcher.Constraint("Vertical", 3, 2, 5, 2),
    Sketcher.Constraint("Vertical", 4, 2, 7, 2),
    Sketcher.Constraint("Vertical", 15, 3, 8, 2),
    Sketcher.Constraint("Vertical", 8, 2, 14, 2),
    Sketcher.Constraint("Radius", 0, Q("0.125 in")),
    Sketcher.Constraint("DistanceX", 0, 3, -1, 1, 82.06),
    Sketcher.Constraint("DistanceY", 0, 3, -1, 1, 149.6),
    Sketcher.Constraint("DistanceY", 4, 3, -1, 1, 180.6),
    Sketcher.Constraint("DistanceX", 8, 3, -1, 1, 114.79),
    Sketcher.Constraint("DistanceY", 1, 2, -1, 1, 148.1),
])
pocket4 = doc.addObject("PartDesign::Pocket", "Pocket003")
body.addObject(pocket4)
pocket4.Profile = sketch6
pocket4.Length = Q("0.1 in")

doc.recompute()
